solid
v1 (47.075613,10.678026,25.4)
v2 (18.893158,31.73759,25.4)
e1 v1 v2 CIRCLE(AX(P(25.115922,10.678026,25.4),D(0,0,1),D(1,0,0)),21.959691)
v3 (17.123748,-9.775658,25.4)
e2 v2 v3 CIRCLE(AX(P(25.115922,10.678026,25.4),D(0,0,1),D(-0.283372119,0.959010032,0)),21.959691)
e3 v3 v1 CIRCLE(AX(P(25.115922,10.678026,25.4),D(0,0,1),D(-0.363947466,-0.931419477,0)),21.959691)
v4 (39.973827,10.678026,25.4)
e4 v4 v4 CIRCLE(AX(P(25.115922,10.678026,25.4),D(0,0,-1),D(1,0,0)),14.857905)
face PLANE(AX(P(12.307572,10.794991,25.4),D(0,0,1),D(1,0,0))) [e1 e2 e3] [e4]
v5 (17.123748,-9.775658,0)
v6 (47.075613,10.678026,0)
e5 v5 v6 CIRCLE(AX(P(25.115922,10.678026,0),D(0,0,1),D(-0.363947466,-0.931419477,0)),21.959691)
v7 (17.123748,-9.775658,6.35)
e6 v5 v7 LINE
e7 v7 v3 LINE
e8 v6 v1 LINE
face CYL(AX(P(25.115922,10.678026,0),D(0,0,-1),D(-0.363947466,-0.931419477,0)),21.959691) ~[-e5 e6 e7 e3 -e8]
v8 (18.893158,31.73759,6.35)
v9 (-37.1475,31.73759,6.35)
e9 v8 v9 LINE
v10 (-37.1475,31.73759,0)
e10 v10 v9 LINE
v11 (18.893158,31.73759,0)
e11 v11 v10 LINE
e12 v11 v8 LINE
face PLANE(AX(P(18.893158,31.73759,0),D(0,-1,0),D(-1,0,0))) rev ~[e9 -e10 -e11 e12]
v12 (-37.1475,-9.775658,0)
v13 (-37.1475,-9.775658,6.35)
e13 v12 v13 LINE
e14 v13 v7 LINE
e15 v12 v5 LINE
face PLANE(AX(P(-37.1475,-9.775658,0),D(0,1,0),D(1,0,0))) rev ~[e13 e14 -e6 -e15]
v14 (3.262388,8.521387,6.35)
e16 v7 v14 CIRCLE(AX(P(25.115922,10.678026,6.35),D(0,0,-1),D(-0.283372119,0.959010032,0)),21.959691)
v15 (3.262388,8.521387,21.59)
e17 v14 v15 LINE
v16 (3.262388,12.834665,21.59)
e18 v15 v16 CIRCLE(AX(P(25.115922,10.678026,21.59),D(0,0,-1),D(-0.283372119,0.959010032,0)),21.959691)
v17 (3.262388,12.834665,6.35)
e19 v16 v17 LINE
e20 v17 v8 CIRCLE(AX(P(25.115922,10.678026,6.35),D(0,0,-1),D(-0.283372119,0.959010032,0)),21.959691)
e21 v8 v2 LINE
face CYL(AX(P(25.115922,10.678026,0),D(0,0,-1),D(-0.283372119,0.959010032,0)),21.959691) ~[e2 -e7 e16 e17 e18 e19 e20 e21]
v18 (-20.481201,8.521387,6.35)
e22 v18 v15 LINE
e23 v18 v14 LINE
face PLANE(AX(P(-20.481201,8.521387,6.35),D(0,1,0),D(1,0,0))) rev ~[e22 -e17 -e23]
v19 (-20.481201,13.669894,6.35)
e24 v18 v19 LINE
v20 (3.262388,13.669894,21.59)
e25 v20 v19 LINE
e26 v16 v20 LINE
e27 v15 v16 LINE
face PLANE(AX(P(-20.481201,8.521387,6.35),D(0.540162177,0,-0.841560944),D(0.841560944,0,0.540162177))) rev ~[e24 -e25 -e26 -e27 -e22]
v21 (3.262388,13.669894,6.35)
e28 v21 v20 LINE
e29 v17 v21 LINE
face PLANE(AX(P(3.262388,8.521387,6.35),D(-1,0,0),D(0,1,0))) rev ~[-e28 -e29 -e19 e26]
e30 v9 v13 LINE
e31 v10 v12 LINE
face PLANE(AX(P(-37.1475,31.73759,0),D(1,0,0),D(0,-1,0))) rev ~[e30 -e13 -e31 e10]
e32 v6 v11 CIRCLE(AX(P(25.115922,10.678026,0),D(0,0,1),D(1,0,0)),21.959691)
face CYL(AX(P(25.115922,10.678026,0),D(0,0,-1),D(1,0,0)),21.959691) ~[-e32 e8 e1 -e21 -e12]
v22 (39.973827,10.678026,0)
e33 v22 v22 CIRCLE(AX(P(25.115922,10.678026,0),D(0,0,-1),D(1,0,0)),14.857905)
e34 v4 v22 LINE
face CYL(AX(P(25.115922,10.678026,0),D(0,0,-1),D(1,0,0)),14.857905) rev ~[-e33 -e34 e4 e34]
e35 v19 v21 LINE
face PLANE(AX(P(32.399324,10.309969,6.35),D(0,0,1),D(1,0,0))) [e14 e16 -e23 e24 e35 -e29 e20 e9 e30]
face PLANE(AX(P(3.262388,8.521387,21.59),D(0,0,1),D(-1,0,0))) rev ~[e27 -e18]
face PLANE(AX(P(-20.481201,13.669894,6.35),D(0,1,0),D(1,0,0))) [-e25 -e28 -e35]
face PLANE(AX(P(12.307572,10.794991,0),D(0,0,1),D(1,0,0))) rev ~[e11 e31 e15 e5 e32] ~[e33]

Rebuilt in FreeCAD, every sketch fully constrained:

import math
import FreeCAD as App
import Part
import Sketcher
from FreeCAD import Vector
Q = App.Units.Quantity

doc = App.newDocument("Part")
body = doc.addObject("PartDesign::Body", "Body")

# Sketch on XY plane
sketch1 = doc.addObject("Sketcher::SketchObject", "Sketch")
body.addObject(sketch1)
sketch1.AttachmentSupport = (doc.XY_Plane, [""])
sketch1.MapMode = "FlatFace"
sketch1.addGeometry([
    Part.ArcOfCircle(Part.Circle(Vector(25, 11, 0), Vector(0, 0, 1), 22), math.radians(106), math.radians(249)),
    Part.ArcOfCircle(Part.Circle(Vector(25, 11, 0), Vector(0, 0, 1), 22), math.radians(-111), math.radians(0)),
    Part.ArcOfCircle(Part.Circle(Vector(25, 11, 0), Vector(0, 0, 1), 22), math.radians(0), math.radians(106)),
    Part.Circle(Vector(25, 11, 0), Vector(0, 0, 1), 15),
], False)
sketch1.addConstraint([
    Sketcher.Constraint("Tangent", 0, 2, 1, 1),
    Sketcher.Constraint("Tangent", 1, 2, 2, 1),
    Sketcher.Constraint("Tangent", 2, 2, 0, 1),
    Sketcher.Constraint("Coincident", 3, 3, 0, 3),
    Sketcher.Constraint("Horizontal", 3, 3, 1, 2),
    Sketcher.Constraint("Diameter", 3, Q("29.71581 mm")),
    Sketcher.Constraint("Radius", 0, Q("21.959691 mm")),
    Sketcher.Constraint("DistanceX", -1, 1, 0, 2, Q("17.123748 mm")),
    Sketcher.Constraint("DistanceY", 0, 2, -1, 1, Q("9.775658 mm")),
    Sketcher.Constraint("DistanceY", -1, 1, 2, 2, Q("31.73759 mm")),
    Sketcher.Constraint("DistanceX", -1, 1, 0, 3, Q("25.115922 mm")),
])
pad1 = doc.addObject("PartDesign::Pad", "Pad")
body.addObject(pad1)
pad1.Profile = sketch1
pad1.Length = Q("1 in")

# Sketch on XY plane
sketch2 = doc.addObject("Sketcher::SketchObject", "Sketch001")
body.addObject(sketch2)
sketch2.AttachmentSupport = (doc.XY_Plane, [""])
sketch2.MapMode = "FlatFace"
sketch2.addGeometry([
    Part.ArcOfCircle(Part.Circle(Vector(25, 11, 0), Vector(0, 0, 1), 22), math.radians(-111), math.radians(0)),  # 0
    Part.ArcOfCircle(Part.Circle(Vector(25, 11, 0), Vector(0, 0, 1), 22), math.radians(0), math.radians(106)),  # 1
    Part.LineSegment(Vector(19, 32, 0), Vector(-37, 32, 0)),  # 2
    Part.LineSegment(Vector(-37, 32, 0), Vector(-37, -10, 0)),  # 3
    Part.LineSegment(Vector(-37, -10, 0), Vector(17, -10, 0)),  # 4
    Part.Circle(Vector(25, 11, 0), Vector(0, 0, 1), 15),  # 5
], False)
sketch2.addConstraint([
    Sketcher.Constraint("Tangent", 0, 2, 1, 1),
    Sketcher.Constraint("Coincident", 1, 2, 2, 1),
    Sketcher.Constraint("Coincident", 2, 2, 3, 1),
    Sketcher.Constraint("Coincident", 3, 2, 4, 1),
    Sketcher.Constraint("Coincident", 4, 2, 0, 1),
    Sketcher.Constraint("Horizontal", 2),
    Sketcher.Constraint("Vertical", 3),
    Sketcher.Constraint("Horizontal", 4),
    Sketcher.Constraint("Coincident", 5, 3, 0, 3),
    Sketcher.Constraint("Equal", 0, 1),
    Sketcher.Constraint("Horizontal", 5, 3, 0, 2),
    Sketcher.Constraint("Diameter", 5, Q("29.71581 mm")),
    Sketcher.Constraint("Radius", 0, Q("21.959691 mm")),
    Sketcher.Constraint("DistanceX", 2, 2, -1, 1, Q("1.4625 in")),
    Sketcher.Constraint("DistanceY", 3, 2, 3, 1, Q("41.513248 mm")),
    Sketcher.Constraint("DistanceX", 2, 2, 2, 1, Q("56.040658 mm")),
    Sketcher.Constraint("DistanceX", 4, 1, 4, 2, Q("54.271248 mm")),
    Sketcher.Constraint("DistanceY", -1, 1, 1, 2, Q("31.73759 mm")),
])
pad2 = doc.addObject("PartDesign::Pad", "Pad001")
body.addObject(pad2)
pad2.Profile = sketch2
pad2.Length = Q("0.25 in")

# Sketch on XY plane
sketch3 = doc.addObject("Sketcher::SketchObject", "Sketch002")
body.addObject(sketch3)
sketch3.AttachmentSupport = (doc.XY_Plane, [""])
sketch3.MapMode = "FlatFace"
sketch3.AttachmentOffset = App.Placement(Vector(0, 0, 0.25 * 25.4), App.Rotation())
sketch3.addGeometry([
    Part.LineSegment(Vector(-20, 14, 0), Vector(-20, 9, 0)),
    Part.LineSegment(Vector(-20, 9, 0), Vector(3, 9, 0)),
    Part.LineSegment(Vector(3, 9, 0), Vector(3, 14, 0)),
    Part.LineSegment(Vector(3, 14, 0), Vector(-20, 14, 0)),
], False)
sketch3.addConstraint([
    Sketcher.Constraint("Coincident", 0, 2, 1, 1),
    Sketcher.Constraint("Coincident", 1, 2, 2, 1),
    Sketcher.Constraint("Coincident", 2, 2, 3, 1),
    Sketcher.Constraint("Coincident", 3, 2, 0, 1),
    Sketcher.Constraint("Vertical", 0),
    Sketcher.Constraint("Horizontal", 1),
    Sketcher.Constraint("Vertical", 2),
    Sketcher.Constraint("Horizontal", 3),
    Sketcher.Constraint("DistanceX", 1, 1, 1, 2, Q("23.743589 mm")),
    Sketcher.Constraint("DistanceX", 0, 2, -1, 1, Q("20.481201 mm")),
    Sketcher.Constraint("DistanceY", 0, 2, 0, 1, Q("5.148507 mm")),
    Sketcher.Constraint("DistanceY", -1, 1, 0, 2, Q("8.521387 mm")),
])
pad3 = doc.addObject("PartDesign::Pad", "Pad002")
body.addObject(pad3)
pad3.Profile = sketch3
pad3.Length = Q("0.6 in")

# Sketch on XZ plane
sketch4 = doc.addObject("Sketcher::SketchObject", "Sketch003")
body.addObject(sketch4)
sketch4.AttachmentSupport = (doc.XZ_Plane, [""])
sketch4.MapMode = "FlatFace"
sketch4.AttachmentOffset = App.Placement(Vector(0, 0, -8.521387), App.Rotation())
sketch4.addGeometry([
    Part.LineSegment(Vector(-20, 6, 0), Vector(3, 22, 0)),
    Part.LineSegment(Vector(3, 22, 0), Vector(-20, 22, 0)),
    Part.LineSegment(Vector(-20, 22, 0), Vector(-20, 6, 0)),
], False)
sketch4.addConstraint([
    Sketcher.Constraint("Coincident", 0, 2, 1, 1),
    Sketcher.Constraint("Coincident", 1, 2, 2, 1),
    Sketcher.Constraint("Coincident", 2, 2, 0, 1),
    Sketcher.Constraint("Horizontal", 1),
    Sketcher.Constraint("Vertical", 2),
    Sketcher.Constraint("DistanceY", 2, 2, 2, 1, Q("0.6 in")),
    Sketcher.Constraint("DistanceY", -1, 1, 0, 2, Q("0.85 in")),
    Sketcher.Constraint("DistanceX", 1, 2, 1, 1, Q("23.743589 mm")),
    Sketcher.Constraint("DistanceX", 1, 2, -1, 1, Q("20.481201 mm")),
])
pocket1 = doc.addObject("PartDesign::Pocket", "Pocket")
body.addObject(pocket1)
pocket1.Profile = sketch4
pocket1.Length = Q("1 in")

doc.recompute()
